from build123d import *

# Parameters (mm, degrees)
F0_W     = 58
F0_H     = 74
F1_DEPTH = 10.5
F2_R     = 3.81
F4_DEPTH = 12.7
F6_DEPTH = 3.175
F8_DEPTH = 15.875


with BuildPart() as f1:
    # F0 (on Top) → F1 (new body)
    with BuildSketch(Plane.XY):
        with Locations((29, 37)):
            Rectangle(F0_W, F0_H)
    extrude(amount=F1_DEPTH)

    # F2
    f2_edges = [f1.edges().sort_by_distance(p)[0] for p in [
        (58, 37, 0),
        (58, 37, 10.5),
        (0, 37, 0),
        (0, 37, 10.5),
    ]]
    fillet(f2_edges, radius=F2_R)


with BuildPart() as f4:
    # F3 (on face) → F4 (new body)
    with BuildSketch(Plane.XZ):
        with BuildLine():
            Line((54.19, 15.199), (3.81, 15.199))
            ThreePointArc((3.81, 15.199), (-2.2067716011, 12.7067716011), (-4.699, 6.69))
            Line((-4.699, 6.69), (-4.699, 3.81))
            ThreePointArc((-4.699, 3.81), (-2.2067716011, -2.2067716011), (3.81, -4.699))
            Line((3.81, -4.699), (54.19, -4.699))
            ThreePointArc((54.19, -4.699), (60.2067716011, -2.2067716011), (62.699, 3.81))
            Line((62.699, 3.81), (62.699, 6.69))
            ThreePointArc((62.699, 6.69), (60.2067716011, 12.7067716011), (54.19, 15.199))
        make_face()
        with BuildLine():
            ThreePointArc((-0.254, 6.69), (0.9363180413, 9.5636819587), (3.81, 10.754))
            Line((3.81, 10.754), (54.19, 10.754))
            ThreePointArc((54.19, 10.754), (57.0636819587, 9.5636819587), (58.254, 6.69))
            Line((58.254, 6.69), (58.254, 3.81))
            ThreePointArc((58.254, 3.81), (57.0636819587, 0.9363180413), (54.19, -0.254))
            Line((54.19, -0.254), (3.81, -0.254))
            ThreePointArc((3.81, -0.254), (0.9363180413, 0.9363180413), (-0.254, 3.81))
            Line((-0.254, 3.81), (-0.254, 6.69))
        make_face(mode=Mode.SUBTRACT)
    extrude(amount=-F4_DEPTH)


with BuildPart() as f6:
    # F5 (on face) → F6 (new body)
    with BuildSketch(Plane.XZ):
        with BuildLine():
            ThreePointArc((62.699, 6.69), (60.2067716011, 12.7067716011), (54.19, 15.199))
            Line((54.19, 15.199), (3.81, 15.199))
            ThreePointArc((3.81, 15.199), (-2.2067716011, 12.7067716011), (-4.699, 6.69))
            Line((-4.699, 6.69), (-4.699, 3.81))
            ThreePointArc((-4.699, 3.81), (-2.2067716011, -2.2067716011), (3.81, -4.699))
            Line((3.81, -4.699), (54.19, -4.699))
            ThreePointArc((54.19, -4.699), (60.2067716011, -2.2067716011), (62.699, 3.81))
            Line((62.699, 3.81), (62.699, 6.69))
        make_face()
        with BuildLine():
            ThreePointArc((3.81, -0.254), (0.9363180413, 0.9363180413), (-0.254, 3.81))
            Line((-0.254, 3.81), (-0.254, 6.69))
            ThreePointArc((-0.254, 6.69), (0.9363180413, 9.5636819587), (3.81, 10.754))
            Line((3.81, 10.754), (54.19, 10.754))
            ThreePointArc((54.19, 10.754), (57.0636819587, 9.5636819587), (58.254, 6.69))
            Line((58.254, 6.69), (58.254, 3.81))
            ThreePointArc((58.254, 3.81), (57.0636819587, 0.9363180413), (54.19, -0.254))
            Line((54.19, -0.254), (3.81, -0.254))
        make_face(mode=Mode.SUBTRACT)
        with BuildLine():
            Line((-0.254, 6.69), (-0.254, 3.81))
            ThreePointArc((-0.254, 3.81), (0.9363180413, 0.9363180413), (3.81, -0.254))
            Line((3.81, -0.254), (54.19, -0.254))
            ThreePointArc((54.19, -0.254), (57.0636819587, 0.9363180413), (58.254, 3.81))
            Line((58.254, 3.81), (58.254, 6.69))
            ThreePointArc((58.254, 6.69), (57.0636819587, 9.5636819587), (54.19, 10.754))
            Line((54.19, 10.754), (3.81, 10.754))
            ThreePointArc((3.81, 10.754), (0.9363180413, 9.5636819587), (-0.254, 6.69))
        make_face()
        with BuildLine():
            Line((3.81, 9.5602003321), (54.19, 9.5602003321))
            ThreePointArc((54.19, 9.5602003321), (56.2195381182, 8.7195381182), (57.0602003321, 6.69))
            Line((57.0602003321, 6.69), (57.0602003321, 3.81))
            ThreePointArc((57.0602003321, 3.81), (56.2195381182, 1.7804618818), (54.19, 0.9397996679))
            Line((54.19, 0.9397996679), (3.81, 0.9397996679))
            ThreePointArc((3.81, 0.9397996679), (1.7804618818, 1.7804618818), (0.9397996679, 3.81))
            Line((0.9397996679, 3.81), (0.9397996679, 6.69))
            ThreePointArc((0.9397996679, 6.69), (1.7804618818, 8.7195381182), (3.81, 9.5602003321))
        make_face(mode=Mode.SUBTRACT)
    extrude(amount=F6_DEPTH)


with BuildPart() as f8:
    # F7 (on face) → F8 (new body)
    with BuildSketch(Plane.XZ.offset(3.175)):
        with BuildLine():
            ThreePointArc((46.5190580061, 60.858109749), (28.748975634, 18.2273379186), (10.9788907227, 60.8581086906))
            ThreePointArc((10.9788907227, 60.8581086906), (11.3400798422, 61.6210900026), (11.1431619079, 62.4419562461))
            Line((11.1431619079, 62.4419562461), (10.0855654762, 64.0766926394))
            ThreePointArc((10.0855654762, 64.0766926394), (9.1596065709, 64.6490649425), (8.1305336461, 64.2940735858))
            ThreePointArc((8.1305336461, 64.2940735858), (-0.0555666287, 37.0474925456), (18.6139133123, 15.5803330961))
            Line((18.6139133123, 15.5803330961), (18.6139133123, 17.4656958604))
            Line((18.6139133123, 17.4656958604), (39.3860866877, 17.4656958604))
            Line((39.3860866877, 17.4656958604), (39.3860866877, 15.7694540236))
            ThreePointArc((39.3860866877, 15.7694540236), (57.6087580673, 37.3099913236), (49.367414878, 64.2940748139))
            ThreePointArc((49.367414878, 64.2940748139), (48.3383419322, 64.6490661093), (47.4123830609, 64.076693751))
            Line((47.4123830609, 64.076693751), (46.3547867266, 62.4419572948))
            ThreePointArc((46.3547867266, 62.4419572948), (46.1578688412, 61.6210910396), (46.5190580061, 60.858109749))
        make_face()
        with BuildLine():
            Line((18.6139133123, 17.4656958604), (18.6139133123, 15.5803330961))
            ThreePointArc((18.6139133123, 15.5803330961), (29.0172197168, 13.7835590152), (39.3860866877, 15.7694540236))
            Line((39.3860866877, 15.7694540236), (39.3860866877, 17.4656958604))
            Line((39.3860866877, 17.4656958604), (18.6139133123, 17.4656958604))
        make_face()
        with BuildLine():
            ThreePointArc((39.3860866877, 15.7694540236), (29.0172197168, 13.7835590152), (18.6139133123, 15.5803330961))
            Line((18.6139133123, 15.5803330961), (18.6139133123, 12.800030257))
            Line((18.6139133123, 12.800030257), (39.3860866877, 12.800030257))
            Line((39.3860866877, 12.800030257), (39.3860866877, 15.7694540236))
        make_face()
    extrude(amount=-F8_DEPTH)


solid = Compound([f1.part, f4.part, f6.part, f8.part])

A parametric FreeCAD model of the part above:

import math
import FreeCAD as App
import Part
import Sketcher
Q = App.Units.Quantity


def edges_at(feature, points):
    """Names of the edges that pass closest to the given points."""
    edges = feature.Shape.Edges
    near = lambda p: min(range(len(edges)), key=lambda i: edges[i].distToShape(Part.Vertex(*p))[0])
    return sorted({f"Edge{near(p) + 1}" for p in points})


def add_polygon(sketch, points):
    """Adds a closed chain of lines whose ends are joined by coincident constraints."""
    first, n = sketch.GeometryCount, len(points)
    for a, b in zip(points, points[1:] + points[:1]):
        sketch.addGeometry(Part.LineSegment(App.Vector(*a, 0), App.Vector(*b, 0)), False)
    for i in range(n):
        sketch.addConstraint(Sketcher.Constraint("Coincident", first + i, 2, first + (i + 1) % n, 1))

doc = App.newDocument("Part")
body = doc.addObject("PartDesign::Body", "Body")

sketch1 = body.newObject("Sketcher::SketchObject", "Sketch")
sketch1.AttachmentSupport = (doc.getObject("XY_Plane"), [""])
sketch1.MapMode = "FlatFace"
add_polygon(sketch1, [(0, 74), (0, 0), (58, 0), (58, 74)])
sketch1.addConstraint(Sketcher.Constraint("Vertical", 0))
sketch1.addConstraint(Sketcher.Constraint("Horizontal", 1))
sketch1.addConstraint(Sketcher.Constraint("Vertical", 2))
sketch1.addConstraint(Sketcher.Constraint("Horizontal", 3))
sketch1.addConstraint(Sketcher.Constraint("Coincident", 0, 2, -1, 1))
sketch1.addConstraint(Sketcher.Constraint("DistanceX", 1, 1, 1, 2, 58.0))
sketch1.addConstraint(Sketcher.Constraint("DistanceY", 0, 2, 0, 1, 74.0))
pad1 = body.newObject("PartDesign::Pad", "Pad")
pad1.Profile = sketch1
pad1.Length = 10.5
doc.recompute()

fillet = body.newObject("PartDesign::Fillet", "Fillet")
fillet.Base = (pad1, edges_at(pad1, [
    (58, 37, 0),
    (58, 37, 10.5),
    (0, 37, 0),
    (0, 37, 10.5),
]))
fillet.Radius = Q("0.15 in")
body2 = doc.addObject("PartDesign::Body", "Body001")

sketch2 = body2.newObject("Sketcher::SketchObject", "Sketch001")
sketch2.AttachmentSupport = (doc.getObject("XZ_Plane001"), [""])
sketch2.MapMode = "FlatFace"
sketch2.addGeometry(Part.LineSegment(App.Vector(54.19, 15.199, 0), App.Vector(3.81, 15.199, 0)), False)
sketch2.addGeometry(Part.ArcOfCircle(Part.Circle(App.Vector(3.81, 6.69, 0), App.Vector(0, 0, 1), 8.509), math.radians(90), math.radians(180)), False)
sketch2.addGeometry(Part.LineSegment(App.Vector(-4.699, 6.69, 0), App.Vector(-4.699, 3.81, 0)), False)
sketch2.addGeometry(Part.ArcOfCircle(Part.Circle(App.Vector(3.81, 3.81, 0), App.Vector(0, 0, 1), 8.509), math.radians(180), math.radians(270)), False)
sketch2.addGeometry(Part.LineSegment(App.Vector(3.81, -4.699, 0), App.Vector(54.19, -4.699, 0)), False)
sketch2.addGeometry(Part.ArcOfCircle(Part.Circle(App.Vector(54.19, 3.81, 0), App.Vector(0, 0, 1), 8.509), math.radians(-90), math.radians(0)), False)
sketch2.addGeometry(Part.LineSegment(App.Vector(62.699, 3.81, 0), App.Vector(62.699, 6.69, 0)), False)
sketch2.addGeometry(Part.ArcOfCircle(Part.Circle(App.Vector(54.19, 6.69, 0), App.Vector(0, 0, 1), 8.509), math.radians(0), math.radians(90)), False)
sketch2.addGeometry(Part.LineSegment(App.Vector(-0.254, 3.81, 0), App.Vector(-0.254, 6.69, 0)), False)
sketch2.addGeometry(Part.ArcOfCircle(Part.Circle(App.Vector(3.81, 6.69, 0), App.Vector(0, 0, 1), 4.064), math.radians(90), math.radians(180)), False)
sketch2.addGeometry(Part.LineSegment(App.Vector(3.81, 10.754, 0), App.Vector(54.19, 10.754, 0)), False)
sketch2.addGeometry(Part.ArcOfCircle(Part.Circle(App.Vector(54.19, 6.69, 0), App.Vector(0, 0, 1), 4.064), math.radians(0), math.radians(90)), False)
sketch2.addGeometry(Part.LineSegment(App.Vector(58.254, 6.69, 0), App.Vector(58.254, 3.81, 0)), False)
sketch2.addGeometry(Part.ArcOfCircle(Part.Circle(App.Vector(54.19, 3.81, 0), App.Vector(0, 0, 1), 4.064), math.radians(-90), math.radians(0)), False)
sketch2.addGeometry(Part.LineSegment(App.Vector(54.19, -0.254, 0), App.Vector(3.81, -0.254, 0)), False)
sketch2.addGeometry(Part.ArcOfCircle(Part.Circle(App.Vector(3.81, 3.81, 0), App.Vector(0, 0, 1), 4.064), math.radians(180), math.radians(270)), False)
sketch2.addConstraint(Sketcher.Constraint("Tangent", 0, 2, 1, 1))
sketch2.addConstraint(Sketcher.Constraint("Tangent", 1, 2, 2, 1))
sketch2.addConstraint(Sketcher.Constraint("Tangent", 2, 2, 3, 1))
sketch2.addConstraint(Sketcher.Constraint("Tangent", 3, 2, 4, 1))
sketch2.addConstraint(Sketcher.Constraint("Tangent", 4, 2, 5, 1))
sketch2.addConstraint(Sketcher.Constraint("Tangent", 5, 2, 6, 1))
sketch2.addConstraint(Sketcher.Constraint("Tangent", 6, 2, 7, 1))
sketch2.addConstraint(Sketcher.Constraint("Tangent", 7, 2, 0, 1))
sketch2.addConstraint(Sketcher.Constraint("Tangent", 8, 2, 9, 2))
sketch2.addConstraint(Sketcher.Constraint("Tangent", 9, 1, 10, 1))
sketch2.addConstraint(Sketcher.Constraint("Tangent", 10, 2, 11, 2))
sketch2.addConstraint(Sketcher.Constraint("Tangent", 11, 1, 12, 1))
sketch2.addConstraint(Sketcher.Constraint("Tangent", 12, 2, 13, 2))
sketch2.addConstraint(Sketcher.Constraint("Tangent", 13, 1, 14, 1))
sketch2.addConstraint(Sketcher.Constraint("Tangent", 14, 2, 15, 2))
sketch2.addConstraint(Sketcher.Constraint("Tangent", 15, 1, 8, 1))
sketch2.addConstraint(Sketcher.Constraint("Horizontal", 0))
sketch2.addConstraint(Sketcher.Constraint("Vertical", 2))
sketch2.addConstraint(Sketcher.Constraint("Horizontal", 4))
sketch2.addConstraint(Sketcher.Constraint("Vertical", 6))
sketch2.addConstraint(Sketcher.Constraint("Vertical", 8))
sketch2.addConstraint(Sketcher.Constraint("Horizontal", 10))
sketch2.addConstraint(Sketcher.Constraint("Vertical", 12))
sketch2.addConstraint(Sketcher.Constraint("Horizontal", 14))
sketch2.addConstraint(Sketcher.Constraint("Coincident", 9, 3, 1, 3))
sketch2.addConstraint(Sketcher.Constraint("Coincident", 11, 3, 7, 3))
sketch2.addConstraint(Sketcher.Constraint("Coincident", 13, 3, 5, 3))
sketch2.addConstraint(Sketcher.Constraint("Equal", 1, 3))
sketch2.addConstraint(Sketcher.Constraint("Equal", 3, 5))
sketch2.addConstraint(Sketcher.Constraint("Equal", 5, 7))
sketch2.addConstraint(Sketcher.Constraint("Equal", 13, 15))
sketch2.addConstraint(Sketcher.Constraint("Radius", 9, Q("0.16 in")))
sketch2.addConstraint(Sketcher.Constraint("Radius", 1, Q("0.335 in")))
sketch2.addConstraint(Sketcher.Constraint("DistanceX", -1, 1, 1, 3, Q("0.15 in")))
sketch2.addConstraint(Sketcher.Constraint("DistanceY", -1, 1, 3, 3, Q("0.15 in")))
sketch2.addConstraint(Sketcher.Constraint("DistanceX", 0, 2, 0, 1, 50.38))
sketch2.addConstraint(Sketcher.Constraint("DistanceY", 2, 2, 2, 1, 2.88))
pad2 = body2.newObject("PartDesign::Pad", "Pad001")
pad2.Profile = sketch2
pad2.Length = Q("0.5 in")
pad2.Reversed = True
body3 = doc.addObject("PartDesign::Body", "Body002")

sketch3 = body3.newObject("Sketcher::SketchObject", "Sketch002")
sketch3.AttachmentSupport = (doc.getObject("XZ_Plane002"), [""])
sketch3.MapMode = "FlatFace"
sketch3.addGeometry(Part.ArcOfCircle(Part.Circle(App.Vector(54.19, 6.69, 0), App.Vector(0, 0, 1), 8.509), math.radians(0), math.radians(90)), False)
sketch3.addGeometry(Part.LineSegment(App.Vector(54.19, 15.199, 0), App.Vector(3.81, 15.199, 0)), False)
sketch3.addGeometry(Part.ArcOfCircle(Part.Circle(App.Vector(3.81, 6.69, 0), App.Vector(0, 0, 1), 8.509), math.radians(90), math.radians(180)), False)
sketch3.addGeometry(Part.LineSegment(App.Vector(-4.699, 6.69, 0), App.Vector(-4.699, 3.81, 0)), False)
sketch3.addGeometry(Part.ArcOfCircle(Part.Circle(App.Vector(3.81, 3.81, 0), App.Vector(0, 0, 1), 8.509), math.radians(180), math.radians(270)), False)
sketch3.addGeometry(Part.LineSegment(App.Vector(3.81, -4.699, 0), App.Vector(54.19, -4.699, 0)), False)
sketch3.addGeometry(Part.ArcOfCircle(Part.Circle(App.Vector(54.19, 3.81, 0), App.Vector(0, 0, 1), 8.509), math.radians(-90), math.radians(0)), False)
sketch3.addGeometry(Part.LineSegment(App.Vector(62.699, 3.81, 0), App.Vector(62.699, 6.69, 0)), False)
sketch3.addGeometry(Part.ArcOfCircle(Part.Circle(App.Vector(3.81, 6.69, 0), App.Vector(0, 0, 1), 2.8702), math.radians(90), math.radians(180)), False)
sketch3.addGeometry(Part.LineSegment(App.Vector(3.81, 9.5602, 0), App.Vector(54.19, 9.5602, 0)), False)
sketch3.addGeometry(Part.ArcOfCircle(Part.Circle(App.Vector(54.19, 6.69, 0), App.Vector(0, 0, 1), 2.8702), math.radians(0), math.radians(90)), False)
sketch3.addGeometry(Part.LineSegment(App.Vector(57.0602, 6.69, 0), App.Vector(57.0602, 3.81, 0)), False)
sketch3.addGeometry(Part.ArcOfCircle(Part.Circle(App.Vector(54.19, 3.81, 0), App.Vector(0, 0, 1), 2.8702), math.radians(-90), math.radians(0)), False)
sketch3.addGeometry(Part.LineSegment(App.Vector(54.19, 0.9398, 0), App.Vector(3.81, 0.9398, 0)), False)
sketch3.addGeometry(Part.ArcOfCircle(Part.Circle(App.Vector(3.81, 3.81, 0), App.Vector(0, 0, 1), 2.8702), math.radians(180), math.radians(270)), False)
sketch3.addGeometry(Part.LineSegment(App.Vector(0.9398, 3.81, 0), App.Vector(0.9398, 6.69, 0)), False)
sketch3.addConstraint(Sketcher.Constraint("Tangent", 0, 2, 1, 1))
sketch3.addConstraint(Sketcher.Constraint("Tangent", 1, 2, 2, 1))
sketch3.addConstraint(Sketcher.Constraint("Tangent", 2, 2, 3, 1))
sketch3.addConstraint(Sketcher.Constraint("Tangent", 3, 2, 4, 1))
sketch3.addConstraint(Sketcher.Constraint("Tangent", 4, 2, 5, 1))
sketch3.addConstraint(Sketcher.Constraint("Tangent", 5, 2, 6, 1))
sketch3.addConstraint(Sketcher.Constraint("Tangent", 6, 2, 7, 1))
sketch3.addConstraint(Sketcher.Constraint("Tangent", 7, 2, 0, 1))
sketch3.addConstraint(Sketcher.Constraint("Tangent", 8, 1, 9, 1))
sketch3.addConstraint(Sketcher.Constraint("Tangent", 9, 2, 10, 2))
sketch3.addConstraint(Sketcher.Constraint("Tangent", 10, 1, 11, 1))
sketch3.addConstraint(Sketcher.Constraint("Tangent", 11, 2, 12, 2))
sketch3.addConstraint(Sketcher.Constraint("Tangent", 12, 1, 13, 1))
sketch3.addConstraint(Sketcher.Constraint("Tangent", 13, 2, 14, 2))
sketch3.addConstraint(Sketcher.Constraint("Tangent", 14, 1, 15, 1))
sketch3.addConstraint(Sketcher.Constraint("Tangent", 15, 2, 8, 2))
sketch3.addConstraint(Sketcher.Constraint("Horizontal", 1))
sketch3.addConstraint(Sketcher.Constraint("Vertical", 3))
sketch3.addConstraint(Sketcher.Constraint("Horizontal", 5))
sketch3.addConstraint(Sketcher.Constraint("Vertical", 7))
sketch3.addConstraint(Sketcher.Constraint("Horizontal", 9))
sketch3.addConstraint(Sketcher.Constraint("Vertical", 11))
sketch3.addConstraint(Sketcher.Constraint("Horizontal", 13))
sketch3.addConstraint(Sketcher.Constraint("Vertical", 15))
sketch3.addConstraint(Sketcher.Constraint("Coincident", 8, 3, 2, 3))
sketch3.addConstraint(Sketcher.Constraint("Coincident", 10, 3, 0, 3))
sketch3.addConstraint(Sketcher.Constraint("Coincident", 12, 3, 6, 3))
sketch3.addConstraint(Sketcher.Constraint("Equal", 0, 2))
sketch3.addConstraint(Sketcher.Constraint("Equal", 2, 4))
sketch3.addConstraint(Sketcher.Constraint("Equal", 4, 6))
sketch3.addConstraint(Sketcher.Constraint("Equal", 12, 14))
sketch3.addConstraint(Sketcher.Constraint("Radius", 0, Q("0.335 in")))
sketch3.addConstraint(Sketcher.Constraint("Radius", 8, Q("0.113 in")))
sketch3.addConstraint(Sketcher.Constraint("DistanceX", -1, 1, 2, 3, Q("0.15 in")))
sketch3.addConstraint(Sketcher.Constraint("DistanceY", -1, 1, 4, 3, Q("0.15 in")))
sketch3.addConstraint(Sketcher.Constraint("DistanceX", 1, 2, 1, 1, 50.38))
sketch3.addConstraint(Sketcher.Constraint("DistanceY", 3, 2, 3, 1, 2.88))
pad3 = body3.newObject("PartDesign::Pad", "Pad002")
pad3.Profile = sketch3
pad3.Length = Q("0.125 in")
body4 = doc.addObject("PartDesign::Body", "Body003")

sketch4 = body4.newObject("Sketcher::SketchObject", "Sketch003")
sketch4.AttachmentSupport = (doc.getObject("XZ_Plane003"), [""])
sketch4.MapMode = "FlatFace"
sketch4.AttachmentOffset = App.Placement(App.Vector(0, 0, 0.125 * 25.4), App.Rotation())
sketch4.addGeometry(Part.ArcOfCircle(Part.Circle(App.Vector(28.748975, 43.246338, 0), App.Vector(0, 0, 1), 25.019), math.radians(135.256364), math.radians(404.74364)), False)
sketch4.addGeometry(Part.ArcOfCircle(Part.Circle(App.Vector(10.076856, 61.752107, 0), App.Vector(0, 0, 1), 1.27), math.radians(-44.743636), math.radians(32.90094)), False)
sketch4.addGeometry(Part.LineSegment(App.Vector(11.143162, 62.441956, 0), App.Vector(10.085565, 64.076693, 0)), False)
sketch4.addGeometry(Part.ArcOfCircle(Part.Circle(App.Vector(9.01926, 63.386844, 0), App.Vector(0, 0, 1), 1.27), math.radians(32.90094), math.radians(134.409692)), False)
sketch4.addGeometry(Part.ArcOfCircle(Part.Circle(App.Vector(28.748975, 43.246338, 0), App.Vector(0, 0, 1), 29.464), math.radians(134.409692), math.radians(249.880384)), False)
sketch4.addGeometry(Part.LineSegment(App.Vector(18.613913, 15.580333, 0), App.Vector(18.613913, 12.80003, 0)), False)
sketch4.addGeometry(Part.LineSegment(App.Vector(18.613913, 12.80003, 0), App.Vector(39.386087, 12.80003, 0)), False)
sketch4.addGeometry(Part.LineSegment(App.Vector(39.386087, 12.80003, 0), App.Vector(39.386087, 15.769454, 0)), False)
sketch4.addGeometry(Part.ArcOfCircle(Part.Circle(App.Vector(28.748975, 43.246338, 0), App.Vector(0, 0, 1), 29.464), math.radians(-68.83711), math.radians(45.590312)), False)
sketch4.addGeometry(Part.ArcOfCircle(Part.Circle(App.Vector(48.478689, 63.386845, 0), App.Vector(0, 0, 1), 1.27), math.radians(45.590312), math.radians(147.099064)), False)
sketch4.addGeometry(Part.LineSegment(App.Vector(47.412383, 64.076694, 0), App.Vector(46.354787, 62.441957, 0)), False)
sketch4.addGeometry(Part.ArcOfCircle(Part.Circle(App.Vector(47.421093, 61.752108, 0), App.Vector(0, 0, 1), 1.27), math.radians(147.099064), math.radians(224.74364)), False)
sketch4.addConstraint(Sketcher.Constraint("Tangent", 0, 1, 1, 1))
sketch4.addConstraint(Sketcher.Constraint("Tangent", 1, 2, 2, 1))
sketch4.addConstraint(Sketcher.Constraint("Tangent", 2, 2, 3, 1))
sketch4.addConstraint(Sketcher.Constraint("Tangent", 3, 2, 4, 1))
sketch4.addConstraint(Sketcher.Constraint("Coincident", 4, 2, 5, 1))
sketch4.addConstraint(Sketcher.Constraint("Coincident", 5, 2, 6, 1))
sketch4.addConstraint(Sketcher.Constraint("Coincident", 6, 2, 7, 1))
sketch4.addConstraint(Sketcher.Constraint("Coincident", 7, 2, 8, 1))
sketch4.addConstraint(Sketcher.Constraint("Tangent", 8, 2, 9, 1))
sketch4.addConstraint(Sketcher.Constraint("Tangent", 9, 2, 10, 1))
sketch4.addConstraint(Sketcher.Constraint("Tangent", 10, 2, 11, 1))
sketch4.addConstraint(Sketcher.Constraint("Tangent", 11, 2, 0, 2))
sketch4.addConstraint(Sketcher.Constraint("Vertical", 5))
sketch4.addConstraint(Sketcher.Constraint("Horizontal", 6))
sketch4.addConstraint(Sketcher.Constraint("Vertical", 7))
sketch4.addConstraint(Sketcher.Constraint("Coincident", 4, 3, 0, 3))
sketch4.addConstraint(Sketcher.Constraint("Coincident", 8, 3, 0, 3))
sketch4.addConstraint(Sketcher.Constraint("Equal", 1, 3))
sketch4.addConstraint(Sketcher.Constraint("Equal", 4, 8))
sketch4.addConstraint(Sketcher.Constraint("Equal", 3, 9))
sketch4.addConstraint(Sketcher.Constraint("Equal", 9, 11))
sketch4.addConstraint(Sketcher.Constraint("Horizontal", 3, 3, 9, 3))
sketch4.addConstraint(Sketcher.Constraint("Horizontal", 1, 3, 11, 3))
sketch4.addConstraint(Sketcher.Constraint("Radius", 1, Q("0.05 in")))
sketch4.addConstraint(Sketcher.Constraint("Radius", 4, Q("1.16 in")))
sketch4.addConstraint(Sketcher.Constraint("Radius", 0, Q("0.985 in")))
sketch4.addConstraint(Sketcher.Constraint("DistanceY", 11, 2, 11, 3, 0.893999))
sketch4.addConstraint(Sketcher.Constraint("DistanceX", 6, 1, 6, 2, 20.772173))
sketch4.addConstraint(Sketcher.Constraint("DistanceY", 5, 2, 5, 1, 2.780303))
sketch4.addConstraint(Sketcher.Constraint("DistanceY", 7, 1, 7, 2, 2.969424))
sketch4.addConstraint(Sketcher.Constraint("DistanceX", -1, 1, 3, 3, 9.01926))
sketch4.addConstraint(Sketcher.Constraint("DistanceX", -1, 1, 9, 3, 48.478689))
sketch4.addConstraint(Sketcher.Constraint("DistanceY", -1, 1, 11, 3, 61.752108))
pad4 = body4.newObject("PartDesign::Pad", "Pad003")
pad4.Profile = sketch4
pad4.Length = Q("0.625 in")
pad4.Reversed = True

doc.recompute()
